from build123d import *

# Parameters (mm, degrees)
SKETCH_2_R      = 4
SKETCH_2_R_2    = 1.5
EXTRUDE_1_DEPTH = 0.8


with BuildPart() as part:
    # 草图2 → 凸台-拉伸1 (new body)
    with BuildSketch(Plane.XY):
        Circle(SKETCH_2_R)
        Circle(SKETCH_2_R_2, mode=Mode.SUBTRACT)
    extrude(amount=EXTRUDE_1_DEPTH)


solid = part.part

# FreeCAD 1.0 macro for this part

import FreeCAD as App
import Part
import Sketcher
from FreeCAD import Vector
Q = App.Units.Quantity

doc = App.newDocument("Part")
params = doc.addObject("Spreadsheet::Sheet", "Params")
for row, (alias, value) in enumerate([
    ("sketch1_diameter", "8 mm"),
    ("sketch1_diameter2", "3 mm"),
    ("pad1_length", "0.8 mm"),
], start=1):
    params.set(f"A{row}", alias)
    params.set(f"B{row}", "=" + value)
    params.setAlias(f"B{row}", alias)

body = doc.addObject("PartDesign::Body", "Body")

sketch1 = body.newObject("Sketcher::SketchObject", "Sketch")
sketch1.AttachmentSupport = (doc.getObject("XY_Plane"), [""])
sketch1.MapMode = "FlatFace"
sketch1.addGeometry([
    Part.Circle(Vector(0, 0, 0), Vector(0, 0, 1), 4),
    Part.Circle(Vector(0, 0, 0), Vector(0, 0, 1), 1.5),
], False)
sketch1.addConstraint([
    Sketcher.Constraint("Coincident", 0, 3, -1, 1),
    Sketcher.Constraint("Coincident", 1, 3, -1, 1),
    Sketcher.Constraint("Diameter", 0, Q("8 mm")),
    Sketcher.Constraint("Diameter", 1, Q("3 mm")),
])
sketch1.setExpression("Constraints[2]", "Params.sketch1_diameter")
sketch1.setExpression("Constraints[3]", "Params.sketch1_diameter2")
pad1 = body.newObject("PartDesign::Pad", "Pad")
pad1.Profile = sketch1
pad1.setExpression("Length", "Params.pad1_length")

doc.recompute()
